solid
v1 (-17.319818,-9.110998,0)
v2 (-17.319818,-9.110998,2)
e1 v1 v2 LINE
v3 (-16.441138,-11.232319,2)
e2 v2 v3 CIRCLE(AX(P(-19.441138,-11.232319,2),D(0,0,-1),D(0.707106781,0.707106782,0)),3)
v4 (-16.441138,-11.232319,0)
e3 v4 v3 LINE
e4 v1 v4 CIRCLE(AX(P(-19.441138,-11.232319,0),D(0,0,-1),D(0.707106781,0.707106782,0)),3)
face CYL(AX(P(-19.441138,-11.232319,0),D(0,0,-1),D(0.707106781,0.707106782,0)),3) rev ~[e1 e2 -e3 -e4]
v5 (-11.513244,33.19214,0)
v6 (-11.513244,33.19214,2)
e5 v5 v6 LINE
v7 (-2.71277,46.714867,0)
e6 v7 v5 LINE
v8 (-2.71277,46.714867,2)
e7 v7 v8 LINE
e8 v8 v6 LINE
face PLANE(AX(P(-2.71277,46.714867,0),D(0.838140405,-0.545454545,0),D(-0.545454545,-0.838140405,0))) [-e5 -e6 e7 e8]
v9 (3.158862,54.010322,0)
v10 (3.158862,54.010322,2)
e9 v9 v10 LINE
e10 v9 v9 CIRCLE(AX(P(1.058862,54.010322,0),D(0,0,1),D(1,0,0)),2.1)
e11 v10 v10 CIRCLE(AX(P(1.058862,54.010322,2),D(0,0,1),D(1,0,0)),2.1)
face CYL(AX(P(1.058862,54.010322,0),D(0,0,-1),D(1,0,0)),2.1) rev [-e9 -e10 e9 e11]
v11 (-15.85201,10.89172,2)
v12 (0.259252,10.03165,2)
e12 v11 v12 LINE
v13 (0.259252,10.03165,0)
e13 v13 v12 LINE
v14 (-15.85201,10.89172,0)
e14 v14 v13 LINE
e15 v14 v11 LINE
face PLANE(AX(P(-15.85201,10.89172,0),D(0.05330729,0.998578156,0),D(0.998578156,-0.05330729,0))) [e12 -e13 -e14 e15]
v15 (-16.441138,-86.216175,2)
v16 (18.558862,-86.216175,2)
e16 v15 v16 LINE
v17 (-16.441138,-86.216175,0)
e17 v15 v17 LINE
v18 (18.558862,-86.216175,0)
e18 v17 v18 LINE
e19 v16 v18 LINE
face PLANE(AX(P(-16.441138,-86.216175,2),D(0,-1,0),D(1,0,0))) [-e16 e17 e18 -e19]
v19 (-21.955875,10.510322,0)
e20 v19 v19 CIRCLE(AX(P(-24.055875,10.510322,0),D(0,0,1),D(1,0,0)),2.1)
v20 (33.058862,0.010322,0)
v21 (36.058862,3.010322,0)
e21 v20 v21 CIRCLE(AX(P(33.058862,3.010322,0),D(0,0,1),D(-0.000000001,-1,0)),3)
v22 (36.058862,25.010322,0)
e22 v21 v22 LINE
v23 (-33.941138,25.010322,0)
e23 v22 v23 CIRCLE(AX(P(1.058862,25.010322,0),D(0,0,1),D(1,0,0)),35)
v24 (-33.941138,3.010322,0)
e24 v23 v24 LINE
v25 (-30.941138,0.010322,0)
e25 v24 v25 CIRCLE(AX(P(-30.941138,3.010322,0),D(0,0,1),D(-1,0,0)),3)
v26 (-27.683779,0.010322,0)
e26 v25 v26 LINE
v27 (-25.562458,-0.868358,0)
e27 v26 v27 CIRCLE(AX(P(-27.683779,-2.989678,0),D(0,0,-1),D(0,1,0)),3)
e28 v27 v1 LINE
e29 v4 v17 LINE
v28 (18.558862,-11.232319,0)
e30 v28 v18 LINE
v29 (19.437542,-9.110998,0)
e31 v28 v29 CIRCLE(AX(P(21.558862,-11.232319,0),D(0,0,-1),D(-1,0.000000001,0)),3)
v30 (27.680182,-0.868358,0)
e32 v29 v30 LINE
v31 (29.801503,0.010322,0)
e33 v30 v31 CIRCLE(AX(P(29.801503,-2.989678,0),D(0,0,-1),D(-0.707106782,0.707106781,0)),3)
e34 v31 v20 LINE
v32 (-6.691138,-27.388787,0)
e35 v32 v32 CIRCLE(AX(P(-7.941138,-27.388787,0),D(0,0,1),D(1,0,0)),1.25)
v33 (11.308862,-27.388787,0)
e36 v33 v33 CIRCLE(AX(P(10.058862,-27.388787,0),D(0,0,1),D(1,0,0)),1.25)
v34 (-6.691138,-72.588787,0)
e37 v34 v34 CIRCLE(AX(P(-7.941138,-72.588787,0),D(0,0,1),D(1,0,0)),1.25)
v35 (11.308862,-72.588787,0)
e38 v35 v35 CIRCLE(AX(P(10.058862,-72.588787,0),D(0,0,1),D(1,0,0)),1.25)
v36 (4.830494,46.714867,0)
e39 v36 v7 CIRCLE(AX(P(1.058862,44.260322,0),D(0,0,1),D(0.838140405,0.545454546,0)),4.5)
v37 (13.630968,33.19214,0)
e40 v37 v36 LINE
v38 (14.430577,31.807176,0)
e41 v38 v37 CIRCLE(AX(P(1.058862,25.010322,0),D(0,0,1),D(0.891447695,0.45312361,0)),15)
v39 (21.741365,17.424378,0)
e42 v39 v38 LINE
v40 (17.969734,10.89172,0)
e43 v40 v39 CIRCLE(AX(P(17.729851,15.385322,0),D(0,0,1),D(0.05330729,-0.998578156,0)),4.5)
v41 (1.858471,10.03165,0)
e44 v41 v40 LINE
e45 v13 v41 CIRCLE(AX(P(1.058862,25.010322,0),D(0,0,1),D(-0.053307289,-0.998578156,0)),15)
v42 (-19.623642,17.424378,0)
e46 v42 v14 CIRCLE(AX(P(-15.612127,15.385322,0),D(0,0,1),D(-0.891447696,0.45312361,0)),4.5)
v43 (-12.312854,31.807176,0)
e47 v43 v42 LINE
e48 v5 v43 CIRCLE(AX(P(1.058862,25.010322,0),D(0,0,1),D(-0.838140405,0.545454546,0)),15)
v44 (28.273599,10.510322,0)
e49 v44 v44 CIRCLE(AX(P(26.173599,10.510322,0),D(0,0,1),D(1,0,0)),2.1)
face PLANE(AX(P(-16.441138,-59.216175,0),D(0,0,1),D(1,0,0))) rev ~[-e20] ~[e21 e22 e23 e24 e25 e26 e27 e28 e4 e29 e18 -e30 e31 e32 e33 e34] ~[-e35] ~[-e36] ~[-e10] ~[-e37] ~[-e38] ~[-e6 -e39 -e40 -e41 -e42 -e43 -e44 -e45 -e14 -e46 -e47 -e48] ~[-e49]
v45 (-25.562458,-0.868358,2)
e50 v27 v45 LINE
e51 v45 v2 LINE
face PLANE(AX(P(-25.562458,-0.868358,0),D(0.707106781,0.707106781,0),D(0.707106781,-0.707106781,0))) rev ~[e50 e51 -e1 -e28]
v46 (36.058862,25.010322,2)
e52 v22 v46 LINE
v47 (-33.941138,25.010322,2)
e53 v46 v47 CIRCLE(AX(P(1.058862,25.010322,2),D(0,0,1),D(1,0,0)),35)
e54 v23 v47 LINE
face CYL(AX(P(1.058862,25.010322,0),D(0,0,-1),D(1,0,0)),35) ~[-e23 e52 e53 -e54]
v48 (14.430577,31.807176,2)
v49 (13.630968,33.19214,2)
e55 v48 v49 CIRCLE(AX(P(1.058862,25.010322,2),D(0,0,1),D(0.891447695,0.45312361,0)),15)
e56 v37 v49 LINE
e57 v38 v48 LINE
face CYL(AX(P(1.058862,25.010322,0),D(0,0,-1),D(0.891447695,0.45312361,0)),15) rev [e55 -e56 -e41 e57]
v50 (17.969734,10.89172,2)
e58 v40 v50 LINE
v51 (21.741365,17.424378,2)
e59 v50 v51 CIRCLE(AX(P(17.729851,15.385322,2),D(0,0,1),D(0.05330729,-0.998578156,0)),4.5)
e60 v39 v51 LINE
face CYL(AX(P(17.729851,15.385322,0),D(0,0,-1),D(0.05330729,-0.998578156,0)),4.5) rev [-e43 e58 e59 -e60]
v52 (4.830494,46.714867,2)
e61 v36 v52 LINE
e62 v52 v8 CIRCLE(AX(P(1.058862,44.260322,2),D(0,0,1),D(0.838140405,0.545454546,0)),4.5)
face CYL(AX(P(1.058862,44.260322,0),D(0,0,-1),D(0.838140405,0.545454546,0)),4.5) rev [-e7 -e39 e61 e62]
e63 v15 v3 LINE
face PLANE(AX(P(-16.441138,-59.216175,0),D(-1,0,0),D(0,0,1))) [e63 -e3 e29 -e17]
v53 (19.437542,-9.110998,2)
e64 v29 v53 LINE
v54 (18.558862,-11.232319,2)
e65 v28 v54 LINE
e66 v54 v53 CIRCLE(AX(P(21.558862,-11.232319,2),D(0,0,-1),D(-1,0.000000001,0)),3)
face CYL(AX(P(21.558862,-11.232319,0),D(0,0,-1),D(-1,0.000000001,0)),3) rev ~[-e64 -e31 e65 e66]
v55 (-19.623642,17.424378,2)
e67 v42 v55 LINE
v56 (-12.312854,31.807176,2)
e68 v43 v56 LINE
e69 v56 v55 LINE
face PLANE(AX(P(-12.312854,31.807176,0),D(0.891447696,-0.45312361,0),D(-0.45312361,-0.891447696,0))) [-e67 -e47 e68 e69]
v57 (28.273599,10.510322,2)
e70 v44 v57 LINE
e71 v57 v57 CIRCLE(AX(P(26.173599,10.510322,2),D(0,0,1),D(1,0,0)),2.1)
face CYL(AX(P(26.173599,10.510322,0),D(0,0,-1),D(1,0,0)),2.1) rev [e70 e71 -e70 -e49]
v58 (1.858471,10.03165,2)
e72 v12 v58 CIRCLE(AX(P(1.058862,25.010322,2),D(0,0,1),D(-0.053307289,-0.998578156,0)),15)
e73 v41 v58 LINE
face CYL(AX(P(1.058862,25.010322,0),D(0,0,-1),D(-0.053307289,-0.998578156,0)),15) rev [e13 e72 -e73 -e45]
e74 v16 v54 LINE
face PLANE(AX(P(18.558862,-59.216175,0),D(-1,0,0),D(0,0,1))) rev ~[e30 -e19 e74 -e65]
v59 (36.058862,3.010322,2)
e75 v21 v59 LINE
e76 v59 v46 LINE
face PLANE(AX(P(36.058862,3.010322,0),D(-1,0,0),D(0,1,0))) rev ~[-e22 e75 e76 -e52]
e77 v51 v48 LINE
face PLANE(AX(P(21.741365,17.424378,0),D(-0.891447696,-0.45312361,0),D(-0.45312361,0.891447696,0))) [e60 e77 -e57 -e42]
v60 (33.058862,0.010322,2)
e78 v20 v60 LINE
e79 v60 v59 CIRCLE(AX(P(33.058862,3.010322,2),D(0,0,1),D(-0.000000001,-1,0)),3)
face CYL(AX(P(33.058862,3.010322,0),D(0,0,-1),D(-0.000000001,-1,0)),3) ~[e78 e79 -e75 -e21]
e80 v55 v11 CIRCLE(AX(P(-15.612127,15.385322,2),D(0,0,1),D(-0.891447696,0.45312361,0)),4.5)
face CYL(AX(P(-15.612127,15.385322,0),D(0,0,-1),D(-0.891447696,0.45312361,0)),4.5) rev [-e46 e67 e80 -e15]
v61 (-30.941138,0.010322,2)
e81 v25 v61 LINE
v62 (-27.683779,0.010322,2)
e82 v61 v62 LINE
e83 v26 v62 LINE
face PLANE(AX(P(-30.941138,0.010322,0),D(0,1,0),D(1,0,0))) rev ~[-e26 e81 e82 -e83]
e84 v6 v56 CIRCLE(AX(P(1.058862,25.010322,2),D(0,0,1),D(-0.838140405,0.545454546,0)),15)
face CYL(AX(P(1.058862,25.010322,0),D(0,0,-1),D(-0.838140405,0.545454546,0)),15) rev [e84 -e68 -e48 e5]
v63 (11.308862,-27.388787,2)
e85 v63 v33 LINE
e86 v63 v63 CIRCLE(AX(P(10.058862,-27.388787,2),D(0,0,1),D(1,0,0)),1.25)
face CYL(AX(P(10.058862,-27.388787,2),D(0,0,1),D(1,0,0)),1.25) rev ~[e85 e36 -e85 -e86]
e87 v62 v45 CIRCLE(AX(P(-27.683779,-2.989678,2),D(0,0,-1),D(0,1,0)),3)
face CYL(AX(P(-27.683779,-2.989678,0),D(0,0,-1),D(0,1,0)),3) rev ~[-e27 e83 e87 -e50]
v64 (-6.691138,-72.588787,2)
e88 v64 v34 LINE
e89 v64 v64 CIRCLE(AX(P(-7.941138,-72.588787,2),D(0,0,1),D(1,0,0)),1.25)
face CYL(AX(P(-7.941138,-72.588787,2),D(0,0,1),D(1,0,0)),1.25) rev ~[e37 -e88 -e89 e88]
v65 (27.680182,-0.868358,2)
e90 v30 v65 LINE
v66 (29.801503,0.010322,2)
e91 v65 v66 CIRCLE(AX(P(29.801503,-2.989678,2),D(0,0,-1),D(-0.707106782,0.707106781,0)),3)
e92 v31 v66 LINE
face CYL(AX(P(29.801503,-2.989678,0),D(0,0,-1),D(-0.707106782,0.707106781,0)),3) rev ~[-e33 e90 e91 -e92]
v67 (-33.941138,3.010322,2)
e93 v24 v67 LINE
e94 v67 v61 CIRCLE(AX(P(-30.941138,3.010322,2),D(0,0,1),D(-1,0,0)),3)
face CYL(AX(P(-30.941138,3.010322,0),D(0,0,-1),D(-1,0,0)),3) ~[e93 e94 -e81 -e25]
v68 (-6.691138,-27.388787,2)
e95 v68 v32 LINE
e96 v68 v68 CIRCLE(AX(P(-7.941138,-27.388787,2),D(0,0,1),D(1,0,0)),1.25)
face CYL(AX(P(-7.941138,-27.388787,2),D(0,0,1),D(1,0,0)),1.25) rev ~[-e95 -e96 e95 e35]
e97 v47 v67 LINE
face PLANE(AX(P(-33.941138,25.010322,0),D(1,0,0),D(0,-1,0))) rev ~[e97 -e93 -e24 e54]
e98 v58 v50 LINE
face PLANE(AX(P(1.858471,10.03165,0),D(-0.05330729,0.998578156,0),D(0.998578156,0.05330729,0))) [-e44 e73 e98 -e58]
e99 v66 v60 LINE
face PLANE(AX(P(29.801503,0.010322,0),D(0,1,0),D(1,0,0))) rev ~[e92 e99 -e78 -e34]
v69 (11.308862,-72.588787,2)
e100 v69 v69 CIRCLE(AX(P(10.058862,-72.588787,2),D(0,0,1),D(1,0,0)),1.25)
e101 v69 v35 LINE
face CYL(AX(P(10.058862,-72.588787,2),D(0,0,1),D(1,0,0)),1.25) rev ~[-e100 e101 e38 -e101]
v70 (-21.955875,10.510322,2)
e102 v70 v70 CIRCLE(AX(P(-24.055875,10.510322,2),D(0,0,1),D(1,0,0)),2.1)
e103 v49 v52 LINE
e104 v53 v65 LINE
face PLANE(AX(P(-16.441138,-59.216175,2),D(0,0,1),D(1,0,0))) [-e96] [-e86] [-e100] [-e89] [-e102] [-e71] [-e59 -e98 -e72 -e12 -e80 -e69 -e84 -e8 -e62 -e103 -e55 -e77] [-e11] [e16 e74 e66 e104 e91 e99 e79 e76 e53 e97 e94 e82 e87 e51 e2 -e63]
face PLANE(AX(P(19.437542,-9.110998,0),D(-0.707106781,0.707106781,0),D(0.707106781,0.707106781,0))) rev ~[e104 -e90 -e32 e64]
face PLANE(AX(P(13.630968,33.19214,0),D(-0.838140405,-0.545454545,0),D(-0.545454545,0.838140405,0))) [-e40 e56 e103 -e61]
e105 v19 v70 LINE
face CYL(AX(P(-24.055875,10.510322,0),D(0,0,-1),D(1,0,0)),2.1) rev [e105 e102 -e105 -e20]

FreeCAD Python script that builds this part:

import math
import FreeCAD as App
import Part
import Sketcher
from FreeCAD import Vector


def add_polygon(sketch, points):
    """Adds a closed chain of lines whose ends are joined by coincident constraints."""
    first, n = sketch.GeometryCount, len(points)
    for a, b in zip(points, points[1:] + points[:1]):
        sketch.addGeometry(Part.LineSegment(App.Vector(*a, 0), App.Vector(*b, 0)), False)
    for i in range(n):
        sketch.addConstraint(Sketcher.Constraint("Coincident", first + i, 2, first + (i + 1) % n, 1))

doc = App.newDocument("Part")
body = doc.addObject("PartDesign::Body", "Body")

sketch1 = body.newObject("Sketcher::SketchObject", "Sketch")
sketch1.AttachmentSupport = (doc.getObject("XY_Plane"), [""])
sketch1.MapMode = "FlatFace"
sketch1.addGeometry([
    Part.LineSegment(Vector(-33.941138, 25.010322, 0), Vector(-33.941138, 3.010322, 0)),
    Part.ArcOfCircle(Part.Circle(Vector(-30.941138, 3.010322, 0), Vector(0, 0, 1), 3), math.radians(180), math.radians(270)),
    Part.LineSegment(Vector(-30.941138, 0.010322, 0), Vector(-27.683779, 0.010322, 0)),
    Part.ArcOfCircle(Part.Circle(Vector(-27.683779, -2.989678, 0), Vector(0, 0, 1), 3), math.radians(45), math.radians(90)),
    Part.LineSegment(Vector(-25.562458, -0.868358, 0), Vector(-17.319818, -9.110998, 0)),
    Part.ArcOfCircle(Part.Circle(Vector(-19.441138, -11.232319, 0), Vector(0, 0, 1), 3), math.radians(0), math.radians(45)),
    Part.LineSegment(Vector(-16.441138, -11.232319, 0), Vector(-16.441138, -59.216175, 0)),
    Part.LineSegment(Vector(-16.441138, -59.216175, 0), Vector(18.558862, -59.216175, 0)),
    Part.LineSegment(Vector(18.558862, -59.216175, 0), Vector(18.558862, -11.232319, 0)),
    Part.ArcOfCircle(Part.Circle(Vector(21.558862, -11.232319, 0), Vector(0, 0, 1), 3), math.radians(135), math.radians(180)),
    Part.LineSegment(Vector(19.437542, -9.110998, 0), Vector(27.680182, -0.868358, 0)),
    Part.ArcOfCircle(Part.Circle(Vector(29.801503, -2.989678, 0), Vector(0, 0, 1), 3), math.radians(90), math.radians(135)),
    Part.LineSegment(Vector(29.801503, 0.010322, 0), Vector(33.058862, 0.010322, 0)),
    Part.ArcOfCircle(Part.Circle(Vector(33.058862, 3.010322, 0), Vector(0, 0, 1), 3), math.radians(-90), math.radians(0)),
    Part.LineSegment(Vector(36.058862, 3.010322, 0), Vector(36.058862, 25.010322, 0)),
    Part.ArcOfCircle(Part.Circle(Vector(1.058862, 25.010322, 0), Vector(0, 0, 1), 35), math.radians(0), math.radians(180)),
    Part.Circle(Vector(-24.055875, 10.510322, 0), Vector(0, 0, 1), 2.1),
    Part.LineSegment(Vector(4.830494, 46.714867, 0), Vector(13.630968, 33.19214, 0)),
    Part.ArcOfCircle(Part.Circle(Vector(1.058862, 25.010322, 0), Vector(0, 0, 1), 15), math.radians(26.944269), math.radians(33.055731)),
    Part.LineSegment(Vector(14.430577, 31.807176, 0), Vector(21.741365, 17.424378, 0)),
    Part.ArcOfCircle(Part.Circle(Vector(17.729851, 15.385322, 0), Vector(0, 0, 1), 4.5), math.radians(-86.944269), math.radians(26.944269)),
    Part.LineSegment(Vector(17.969734, 10.89172, 0), Vector(1.858471, 10.03165, 0)),
    Part.ArcOfCircle(Part.Circle(Vector(1.058862, 25.010322, 0), Vector(0, 0, 1), 15), math.radians(-93.055731), math.radians(-86.944269)),
    Part.LineSegment(Vector(0.259252, 10.03165, 0), Vector(-15.85201, 10.89172, 0)),
    Part.ArcOfCircle(Part.Circle(Vector(-15.612127, 15.385322, 0), Vector(0, 0, 1), 4.5), math.radians(153.055731), math.radians(266.944269)),
    Part.LineSegment(Vector(-19.623642, 17.424378, 0), Vector(-12.312854, 31.807176, 0)),
    Part.ArcOfCircle(Part.Circle(Vector(1.058862, 25.010322, 0), Vector(0, 0, 1), 15), math.radians(146.944269), math.radians(153.055731)),
    Part.LineSegment(Vector(-11.513244, 33.19214, 0), Vector(-2.71277, 46.714867, 0)),
    Part.ArcOfCircle(Part.Circle(Vector(1.058862, 44.260322, 0), Vector(0, 0, 1), 4.5), math.radians(33.055731), math.radians(146.944269)),
    Part.Circle(Vector(26.173599, 10.510322, 0), Vector(0, 0, 1), 2.1),
    Part.Circle(Vector(1.058862, 54.010322, 0), Vector(0, 0, 1), 2.1),
], False)
sketch1.addConstraint([
    Sketcher.Constraint("Tangent", 0, 2, 1, 1),
    Sketcher.Constraint("Tangent", 1, 2, 2, 1),
    Sketcher.Constraint("Tangent", 2, 2, 3, 2),
    Sketcher.Constraint("Tangent", 3, 1, 4, 1),
    Sketcher.Constraint("Tangent", 4, 2, 5, 2),
    Sketcher.Constraint("Tangent", 5, 1, 6, 1),
    Sketcher.Constraint("Coincident", 6, 2, 7, 1),
    Sketcher.Constraint("Coincident", 7, 2, 8, 1),
    Sketcher.Constraint("Tangent", 8, 2, 9, 2),
    Sketcher.Constraint("Tangent", 9, 1, 10, 1),
    Sketcher.Constraint("Tangent", 10, 2, 11, 2),
    Sketcher.Constraint("Tangent", 11, 1, 12, 1),
    Sketcher.Constraint("Tangent", 12, 2, 13, 1),
    Sketcher.Constraint("Tangent", 13, 2, 14, 1),
    Sketcher.Constraint("Tangent", 14, 2, 15, 1),
    Sketcher.Constraint("Tangent", 15, 2, 0, 1),
    Sketcher.Constraint("Tangent", 17, 2, 18, 2),
    Sketcher.Constraint("Tangent", 18, 1, 19, 1),
    Sketcher.Constraint("Tangent", 19, 2, 20, 2),
    Sketcher.Constraint("Tangent", 20, 1, 21, 1),
    Sketcher.Constraint("Tangent", 21, 2, 22, 2),
    Sketcher.Constraint("Tangent", 22, 1, 23, 1),
    Sketcher.Constraint("Tangent", 23, 2, 24, 2),
    Sketcher.Constraint("Tangent", 24, 1, 25, 1),
    Sketcher.Constraint("Tangent", 25, 2, 26, 2),
    Sketcher.Constraint("Tangent", 26, 1, 27, 1),
    Sketcher.Constraint("Tangent", 27, 2, 28, 2),
    Sketcher.Constraint("Tangent", 28, 1, 17, 1),
    Sketcher.Constraint("Vertical", 0),
    Sketcher.Constraint("Horizontal", 2),
    Sketcher.Constraint("Vertical", 6),
    Sketcher.Constraint("Horizontal", 7),
    Sketcher.Constraint("Vertical", 8),
    Sketcher.Constraint("Horizontal", 12),
    Sketcher.Constraint("Vertical", 14),
    Sketcher.Constraint("Coincident", 18, 3, 15, 3),
    Sketcher.Constraint("Coincident", 22, 3, 15, 3),
    Sketcher.Constraint("Coincident", 26, 3, 15, 3),
    Sketcher.Constraint("Equal", 1, 3),
    Sketcher.Constraint("Equal", 3, 5),
    Sketcher.Constraint("Equal", 5, 9),
    Sketcher.Constraint("Equal", 9, 11),
    Sketcher.Constraint("Equal", 11, 13),
    Sketcher.Constraint("Equal", 18, 22),
    Sketcher.Constraint("Equal", 20, 24),
    Sketcher.Constraint("Equal", 22, 26),
    Sketcher.Constraint("Equal", 24, 28),
    Sketcher.Constraint("Equal", 16, 29),
    Sketcher.Constraint("Equal", 29, 30),
    Sketcher.Constraint("Perpendicular", 4, 10),
    Sketcher.Constraint("Horizontal", 5, 3, 9, 3),
    Sketcher.Constraint("Horizontal", 3, 3, 11, 3),
    Sketcher.Constraint("Horizontal", 20, 3, 24, 3),
    Sketcher.Constraint("Horizontal", 16, 3, 29, 3),
    Sketcher.Constraint("Horizontal", 4, 2, 9, 1),
    Sketcher.Constraint("Horizontal", 19, 2, 24, 1),
    Sketcher.Constraint("Horizontal", 17, 2, 26, 1),
    Sketcher.Constraint("Vertical", 28, 3, 30, 3),
    Sketcher.Constraint("Equal", 2, 12),
    Sketcher.Constraint("Equal", 17, 19),
    Sketcher.Constraint("Radius", 1, 3.0),
    Sketcher.Constraint("Radius", 15, 35.0),
    Sketcher.Constraint("Radius", 18, 15.0),
    Sketcher.Constraint("Diameter", 16, 4.2),
    Sketcher.Constraint("Radius", 20, 4.5),
    Sketcher.Constraint("DistanceX", 7, 1, 7, 2, 35.0),
    Sketcher.Constraint("DistanceY", 0, 2, 0, 1, 22.0),
    Sketcher.Constraint("DistanceY", 22, 3, 30, 3, 29.0),
    Sketcher.Constraint("DistanceY", 1, 3, 16, 3, 7.5),
    Sketcher.Constraint("DistanceY", 22, 3, 28, 3, 19.25),
    Sketcher.Constraint("DistanceY", 4, 2, -1, 1, 9.110998),
    Sketcher.Constraint("DistanceY", 20, 3, 18, 3, 9.625),
    Sketcher.Constraint("DistanceX", 2, 1, 2, 2, 3.257359),
    Sketcher.Constraint("DistanceX", -1, 1, 29, 3, 26.173599),
    Sketcher.Constraint("DistanceY", 6, 2, 6, 1, 47.983857),
    Sketcher.Constraint("DistanceX", 1, 3, -1, 1, 30.941138),
    Sketcher.Constraint("DistanceX", 16, 3, -1, 1, 24.055875),
])
pad1 = body.newObject("PartDesign::Pad", "Pad")
pad1.Profile = sketch1
pad1.Length = 2

sketch2 = body.newObject("Sketcher::SketchObject", "Sketch001")
sketch2.AttachmentSupport = (doc.getObject("XZ_Plane"), [""])
sketch2.MapMode = "FlatFace"
sketch2.AttachmentOffset = App.Placement(Vector(0, 0, 59.216175), App.Rotation())
add_polygon(sketch2, [(-16.441138, 2), (-16.441138, 0), (18.558862, 0), (18.558862, 2)])
sketch2.addConstraint([
    Sketcher.Constraint("Vertical", 0),
    Sketcher.Constraint("Horizontal", 1),
    Sketcher.Constraint("Vertical", 2),
    Sketcher.Constraint("Horizontal", 3),
    Sketcher.Constraint("PointOnObject", 0, 2, -1),
    Sketcher.Constraint("DistanceX", 1, 1, 1, 2, 35.0),
    Sketcher.Constraint("DistanceY", 0, 2, 0, 1, 2.0),
    Sketcher.Constraint("DistanceX", 0, 2, -1, 1, 16.441138),
])
pad2 = body.newObject("PartDesign::Pad", "Pad001")
pad2.Profile = sketch2
pad2.Length = 30

sketch3 = body.newObject("Sketcher::SketchObject", "Sketch002")
sketch3.AttachmentSupport = (doc.getObject("XY_Plane"), [""])
sketch3.MapMode = "FlatFace"
sketch3.AttachmentOffset = App.Placement(Vector(0, 0, 2), App.Rotation())
add_polygon(sketch3, [(-16.441138, -86.216175), (-16.441138, -89.216175), (18.558862, -89.216175), (18.558862, -86.216175)])
sketch3.addConstraint([
    Sketcher.Constraint("Vertical", 0),
    Sketcher.Constraint("Horizontal", 1),
    Sketcher.Constraint("Vertical", 2),
    Sketcher.Constraint("Horizontal", 3),
    Sketcher.Constraint("DistanceX", 1, 1, 1, 2, 35.0),
    Sketcher.Constraint("DistanceY", 0, 2, 0, 1, 3.0),
    Sketcher.Constraint("DistanceX", 0, 2, -1, 1, 16.441138),
    Sketcher.Constraint("DistanceY", 0, 2, -1, 1, 89.216175),
])
pocket1 = body.newObject("PartDesign::Pocket", "Pocket")
pocket1.Profile = sketch3
pocket1.Length = 10

sketch4 = body.newObject("Sketcher::SketchObject", "Sketch003")
sketch4.AttachmentSupport = (doc.getObject("XY_Plane"), [""])
sketch4.MapMode = "FlatFace"
sketch4.AttachmentOffset = App.Placement(Vector(0, 0, 2), App.Rotation())
sketch4.addGeometry([
    Part.Circle(Vector(10.058862, -27.388787, 0), Vector(0, 0, 1), 1.25),
    Part.Circle(Vector(-7.941138, -27.388787, 0), Vector(0, 0, 1), 1.25),
    Part.Circle(Vector(-7.941138, -72.588787, 0), Vector(0, 0, 1), 1.25),
    Part.Circle(Vector(10.058862, -72.588787, 0), Vector(0, 0, 1), 1.25),
], False)
sketch4.addConstraint([
    Sketcher.Constraint("Equal", 0, 1),
    Sketcher.Constraint("Equal", 1, 2),
    Sketcher.Constraint("Equal", 2, 3),
    Sketcher.Constraint("Horizontal", 0, 3, 1, 3),
    Sketcher.Constraint("Horizontal", 2, 3, 3, 3),
    Sketcher.Constraint("Vertical", 1, 3, 2, 3),
    Sketcher.Constraint("Vertical", 0, 3, 3, 3),
    Sketcher.Constraint("Diameter", 0, 2.5),
    Sketcher.Constraint("DistanceX", 1, 3, 0, 3, 18.0),
    Sketcher.Constraint("DistanceY", 2, 3, 1, 3, 45.2),
    Sketcher.Constraint("DistanceX", -1, 1, 0, 3, 10.058862),
    Sketcher.Constraint("DistanceY", 0, 3, -1, 1, 27.388787),
])
pocket2 = body.newObject("PartDesign::Pocket", "Pocket001")
pocket2.Profile = sketch4
pocket2.Length = 10

doc.recompute()
